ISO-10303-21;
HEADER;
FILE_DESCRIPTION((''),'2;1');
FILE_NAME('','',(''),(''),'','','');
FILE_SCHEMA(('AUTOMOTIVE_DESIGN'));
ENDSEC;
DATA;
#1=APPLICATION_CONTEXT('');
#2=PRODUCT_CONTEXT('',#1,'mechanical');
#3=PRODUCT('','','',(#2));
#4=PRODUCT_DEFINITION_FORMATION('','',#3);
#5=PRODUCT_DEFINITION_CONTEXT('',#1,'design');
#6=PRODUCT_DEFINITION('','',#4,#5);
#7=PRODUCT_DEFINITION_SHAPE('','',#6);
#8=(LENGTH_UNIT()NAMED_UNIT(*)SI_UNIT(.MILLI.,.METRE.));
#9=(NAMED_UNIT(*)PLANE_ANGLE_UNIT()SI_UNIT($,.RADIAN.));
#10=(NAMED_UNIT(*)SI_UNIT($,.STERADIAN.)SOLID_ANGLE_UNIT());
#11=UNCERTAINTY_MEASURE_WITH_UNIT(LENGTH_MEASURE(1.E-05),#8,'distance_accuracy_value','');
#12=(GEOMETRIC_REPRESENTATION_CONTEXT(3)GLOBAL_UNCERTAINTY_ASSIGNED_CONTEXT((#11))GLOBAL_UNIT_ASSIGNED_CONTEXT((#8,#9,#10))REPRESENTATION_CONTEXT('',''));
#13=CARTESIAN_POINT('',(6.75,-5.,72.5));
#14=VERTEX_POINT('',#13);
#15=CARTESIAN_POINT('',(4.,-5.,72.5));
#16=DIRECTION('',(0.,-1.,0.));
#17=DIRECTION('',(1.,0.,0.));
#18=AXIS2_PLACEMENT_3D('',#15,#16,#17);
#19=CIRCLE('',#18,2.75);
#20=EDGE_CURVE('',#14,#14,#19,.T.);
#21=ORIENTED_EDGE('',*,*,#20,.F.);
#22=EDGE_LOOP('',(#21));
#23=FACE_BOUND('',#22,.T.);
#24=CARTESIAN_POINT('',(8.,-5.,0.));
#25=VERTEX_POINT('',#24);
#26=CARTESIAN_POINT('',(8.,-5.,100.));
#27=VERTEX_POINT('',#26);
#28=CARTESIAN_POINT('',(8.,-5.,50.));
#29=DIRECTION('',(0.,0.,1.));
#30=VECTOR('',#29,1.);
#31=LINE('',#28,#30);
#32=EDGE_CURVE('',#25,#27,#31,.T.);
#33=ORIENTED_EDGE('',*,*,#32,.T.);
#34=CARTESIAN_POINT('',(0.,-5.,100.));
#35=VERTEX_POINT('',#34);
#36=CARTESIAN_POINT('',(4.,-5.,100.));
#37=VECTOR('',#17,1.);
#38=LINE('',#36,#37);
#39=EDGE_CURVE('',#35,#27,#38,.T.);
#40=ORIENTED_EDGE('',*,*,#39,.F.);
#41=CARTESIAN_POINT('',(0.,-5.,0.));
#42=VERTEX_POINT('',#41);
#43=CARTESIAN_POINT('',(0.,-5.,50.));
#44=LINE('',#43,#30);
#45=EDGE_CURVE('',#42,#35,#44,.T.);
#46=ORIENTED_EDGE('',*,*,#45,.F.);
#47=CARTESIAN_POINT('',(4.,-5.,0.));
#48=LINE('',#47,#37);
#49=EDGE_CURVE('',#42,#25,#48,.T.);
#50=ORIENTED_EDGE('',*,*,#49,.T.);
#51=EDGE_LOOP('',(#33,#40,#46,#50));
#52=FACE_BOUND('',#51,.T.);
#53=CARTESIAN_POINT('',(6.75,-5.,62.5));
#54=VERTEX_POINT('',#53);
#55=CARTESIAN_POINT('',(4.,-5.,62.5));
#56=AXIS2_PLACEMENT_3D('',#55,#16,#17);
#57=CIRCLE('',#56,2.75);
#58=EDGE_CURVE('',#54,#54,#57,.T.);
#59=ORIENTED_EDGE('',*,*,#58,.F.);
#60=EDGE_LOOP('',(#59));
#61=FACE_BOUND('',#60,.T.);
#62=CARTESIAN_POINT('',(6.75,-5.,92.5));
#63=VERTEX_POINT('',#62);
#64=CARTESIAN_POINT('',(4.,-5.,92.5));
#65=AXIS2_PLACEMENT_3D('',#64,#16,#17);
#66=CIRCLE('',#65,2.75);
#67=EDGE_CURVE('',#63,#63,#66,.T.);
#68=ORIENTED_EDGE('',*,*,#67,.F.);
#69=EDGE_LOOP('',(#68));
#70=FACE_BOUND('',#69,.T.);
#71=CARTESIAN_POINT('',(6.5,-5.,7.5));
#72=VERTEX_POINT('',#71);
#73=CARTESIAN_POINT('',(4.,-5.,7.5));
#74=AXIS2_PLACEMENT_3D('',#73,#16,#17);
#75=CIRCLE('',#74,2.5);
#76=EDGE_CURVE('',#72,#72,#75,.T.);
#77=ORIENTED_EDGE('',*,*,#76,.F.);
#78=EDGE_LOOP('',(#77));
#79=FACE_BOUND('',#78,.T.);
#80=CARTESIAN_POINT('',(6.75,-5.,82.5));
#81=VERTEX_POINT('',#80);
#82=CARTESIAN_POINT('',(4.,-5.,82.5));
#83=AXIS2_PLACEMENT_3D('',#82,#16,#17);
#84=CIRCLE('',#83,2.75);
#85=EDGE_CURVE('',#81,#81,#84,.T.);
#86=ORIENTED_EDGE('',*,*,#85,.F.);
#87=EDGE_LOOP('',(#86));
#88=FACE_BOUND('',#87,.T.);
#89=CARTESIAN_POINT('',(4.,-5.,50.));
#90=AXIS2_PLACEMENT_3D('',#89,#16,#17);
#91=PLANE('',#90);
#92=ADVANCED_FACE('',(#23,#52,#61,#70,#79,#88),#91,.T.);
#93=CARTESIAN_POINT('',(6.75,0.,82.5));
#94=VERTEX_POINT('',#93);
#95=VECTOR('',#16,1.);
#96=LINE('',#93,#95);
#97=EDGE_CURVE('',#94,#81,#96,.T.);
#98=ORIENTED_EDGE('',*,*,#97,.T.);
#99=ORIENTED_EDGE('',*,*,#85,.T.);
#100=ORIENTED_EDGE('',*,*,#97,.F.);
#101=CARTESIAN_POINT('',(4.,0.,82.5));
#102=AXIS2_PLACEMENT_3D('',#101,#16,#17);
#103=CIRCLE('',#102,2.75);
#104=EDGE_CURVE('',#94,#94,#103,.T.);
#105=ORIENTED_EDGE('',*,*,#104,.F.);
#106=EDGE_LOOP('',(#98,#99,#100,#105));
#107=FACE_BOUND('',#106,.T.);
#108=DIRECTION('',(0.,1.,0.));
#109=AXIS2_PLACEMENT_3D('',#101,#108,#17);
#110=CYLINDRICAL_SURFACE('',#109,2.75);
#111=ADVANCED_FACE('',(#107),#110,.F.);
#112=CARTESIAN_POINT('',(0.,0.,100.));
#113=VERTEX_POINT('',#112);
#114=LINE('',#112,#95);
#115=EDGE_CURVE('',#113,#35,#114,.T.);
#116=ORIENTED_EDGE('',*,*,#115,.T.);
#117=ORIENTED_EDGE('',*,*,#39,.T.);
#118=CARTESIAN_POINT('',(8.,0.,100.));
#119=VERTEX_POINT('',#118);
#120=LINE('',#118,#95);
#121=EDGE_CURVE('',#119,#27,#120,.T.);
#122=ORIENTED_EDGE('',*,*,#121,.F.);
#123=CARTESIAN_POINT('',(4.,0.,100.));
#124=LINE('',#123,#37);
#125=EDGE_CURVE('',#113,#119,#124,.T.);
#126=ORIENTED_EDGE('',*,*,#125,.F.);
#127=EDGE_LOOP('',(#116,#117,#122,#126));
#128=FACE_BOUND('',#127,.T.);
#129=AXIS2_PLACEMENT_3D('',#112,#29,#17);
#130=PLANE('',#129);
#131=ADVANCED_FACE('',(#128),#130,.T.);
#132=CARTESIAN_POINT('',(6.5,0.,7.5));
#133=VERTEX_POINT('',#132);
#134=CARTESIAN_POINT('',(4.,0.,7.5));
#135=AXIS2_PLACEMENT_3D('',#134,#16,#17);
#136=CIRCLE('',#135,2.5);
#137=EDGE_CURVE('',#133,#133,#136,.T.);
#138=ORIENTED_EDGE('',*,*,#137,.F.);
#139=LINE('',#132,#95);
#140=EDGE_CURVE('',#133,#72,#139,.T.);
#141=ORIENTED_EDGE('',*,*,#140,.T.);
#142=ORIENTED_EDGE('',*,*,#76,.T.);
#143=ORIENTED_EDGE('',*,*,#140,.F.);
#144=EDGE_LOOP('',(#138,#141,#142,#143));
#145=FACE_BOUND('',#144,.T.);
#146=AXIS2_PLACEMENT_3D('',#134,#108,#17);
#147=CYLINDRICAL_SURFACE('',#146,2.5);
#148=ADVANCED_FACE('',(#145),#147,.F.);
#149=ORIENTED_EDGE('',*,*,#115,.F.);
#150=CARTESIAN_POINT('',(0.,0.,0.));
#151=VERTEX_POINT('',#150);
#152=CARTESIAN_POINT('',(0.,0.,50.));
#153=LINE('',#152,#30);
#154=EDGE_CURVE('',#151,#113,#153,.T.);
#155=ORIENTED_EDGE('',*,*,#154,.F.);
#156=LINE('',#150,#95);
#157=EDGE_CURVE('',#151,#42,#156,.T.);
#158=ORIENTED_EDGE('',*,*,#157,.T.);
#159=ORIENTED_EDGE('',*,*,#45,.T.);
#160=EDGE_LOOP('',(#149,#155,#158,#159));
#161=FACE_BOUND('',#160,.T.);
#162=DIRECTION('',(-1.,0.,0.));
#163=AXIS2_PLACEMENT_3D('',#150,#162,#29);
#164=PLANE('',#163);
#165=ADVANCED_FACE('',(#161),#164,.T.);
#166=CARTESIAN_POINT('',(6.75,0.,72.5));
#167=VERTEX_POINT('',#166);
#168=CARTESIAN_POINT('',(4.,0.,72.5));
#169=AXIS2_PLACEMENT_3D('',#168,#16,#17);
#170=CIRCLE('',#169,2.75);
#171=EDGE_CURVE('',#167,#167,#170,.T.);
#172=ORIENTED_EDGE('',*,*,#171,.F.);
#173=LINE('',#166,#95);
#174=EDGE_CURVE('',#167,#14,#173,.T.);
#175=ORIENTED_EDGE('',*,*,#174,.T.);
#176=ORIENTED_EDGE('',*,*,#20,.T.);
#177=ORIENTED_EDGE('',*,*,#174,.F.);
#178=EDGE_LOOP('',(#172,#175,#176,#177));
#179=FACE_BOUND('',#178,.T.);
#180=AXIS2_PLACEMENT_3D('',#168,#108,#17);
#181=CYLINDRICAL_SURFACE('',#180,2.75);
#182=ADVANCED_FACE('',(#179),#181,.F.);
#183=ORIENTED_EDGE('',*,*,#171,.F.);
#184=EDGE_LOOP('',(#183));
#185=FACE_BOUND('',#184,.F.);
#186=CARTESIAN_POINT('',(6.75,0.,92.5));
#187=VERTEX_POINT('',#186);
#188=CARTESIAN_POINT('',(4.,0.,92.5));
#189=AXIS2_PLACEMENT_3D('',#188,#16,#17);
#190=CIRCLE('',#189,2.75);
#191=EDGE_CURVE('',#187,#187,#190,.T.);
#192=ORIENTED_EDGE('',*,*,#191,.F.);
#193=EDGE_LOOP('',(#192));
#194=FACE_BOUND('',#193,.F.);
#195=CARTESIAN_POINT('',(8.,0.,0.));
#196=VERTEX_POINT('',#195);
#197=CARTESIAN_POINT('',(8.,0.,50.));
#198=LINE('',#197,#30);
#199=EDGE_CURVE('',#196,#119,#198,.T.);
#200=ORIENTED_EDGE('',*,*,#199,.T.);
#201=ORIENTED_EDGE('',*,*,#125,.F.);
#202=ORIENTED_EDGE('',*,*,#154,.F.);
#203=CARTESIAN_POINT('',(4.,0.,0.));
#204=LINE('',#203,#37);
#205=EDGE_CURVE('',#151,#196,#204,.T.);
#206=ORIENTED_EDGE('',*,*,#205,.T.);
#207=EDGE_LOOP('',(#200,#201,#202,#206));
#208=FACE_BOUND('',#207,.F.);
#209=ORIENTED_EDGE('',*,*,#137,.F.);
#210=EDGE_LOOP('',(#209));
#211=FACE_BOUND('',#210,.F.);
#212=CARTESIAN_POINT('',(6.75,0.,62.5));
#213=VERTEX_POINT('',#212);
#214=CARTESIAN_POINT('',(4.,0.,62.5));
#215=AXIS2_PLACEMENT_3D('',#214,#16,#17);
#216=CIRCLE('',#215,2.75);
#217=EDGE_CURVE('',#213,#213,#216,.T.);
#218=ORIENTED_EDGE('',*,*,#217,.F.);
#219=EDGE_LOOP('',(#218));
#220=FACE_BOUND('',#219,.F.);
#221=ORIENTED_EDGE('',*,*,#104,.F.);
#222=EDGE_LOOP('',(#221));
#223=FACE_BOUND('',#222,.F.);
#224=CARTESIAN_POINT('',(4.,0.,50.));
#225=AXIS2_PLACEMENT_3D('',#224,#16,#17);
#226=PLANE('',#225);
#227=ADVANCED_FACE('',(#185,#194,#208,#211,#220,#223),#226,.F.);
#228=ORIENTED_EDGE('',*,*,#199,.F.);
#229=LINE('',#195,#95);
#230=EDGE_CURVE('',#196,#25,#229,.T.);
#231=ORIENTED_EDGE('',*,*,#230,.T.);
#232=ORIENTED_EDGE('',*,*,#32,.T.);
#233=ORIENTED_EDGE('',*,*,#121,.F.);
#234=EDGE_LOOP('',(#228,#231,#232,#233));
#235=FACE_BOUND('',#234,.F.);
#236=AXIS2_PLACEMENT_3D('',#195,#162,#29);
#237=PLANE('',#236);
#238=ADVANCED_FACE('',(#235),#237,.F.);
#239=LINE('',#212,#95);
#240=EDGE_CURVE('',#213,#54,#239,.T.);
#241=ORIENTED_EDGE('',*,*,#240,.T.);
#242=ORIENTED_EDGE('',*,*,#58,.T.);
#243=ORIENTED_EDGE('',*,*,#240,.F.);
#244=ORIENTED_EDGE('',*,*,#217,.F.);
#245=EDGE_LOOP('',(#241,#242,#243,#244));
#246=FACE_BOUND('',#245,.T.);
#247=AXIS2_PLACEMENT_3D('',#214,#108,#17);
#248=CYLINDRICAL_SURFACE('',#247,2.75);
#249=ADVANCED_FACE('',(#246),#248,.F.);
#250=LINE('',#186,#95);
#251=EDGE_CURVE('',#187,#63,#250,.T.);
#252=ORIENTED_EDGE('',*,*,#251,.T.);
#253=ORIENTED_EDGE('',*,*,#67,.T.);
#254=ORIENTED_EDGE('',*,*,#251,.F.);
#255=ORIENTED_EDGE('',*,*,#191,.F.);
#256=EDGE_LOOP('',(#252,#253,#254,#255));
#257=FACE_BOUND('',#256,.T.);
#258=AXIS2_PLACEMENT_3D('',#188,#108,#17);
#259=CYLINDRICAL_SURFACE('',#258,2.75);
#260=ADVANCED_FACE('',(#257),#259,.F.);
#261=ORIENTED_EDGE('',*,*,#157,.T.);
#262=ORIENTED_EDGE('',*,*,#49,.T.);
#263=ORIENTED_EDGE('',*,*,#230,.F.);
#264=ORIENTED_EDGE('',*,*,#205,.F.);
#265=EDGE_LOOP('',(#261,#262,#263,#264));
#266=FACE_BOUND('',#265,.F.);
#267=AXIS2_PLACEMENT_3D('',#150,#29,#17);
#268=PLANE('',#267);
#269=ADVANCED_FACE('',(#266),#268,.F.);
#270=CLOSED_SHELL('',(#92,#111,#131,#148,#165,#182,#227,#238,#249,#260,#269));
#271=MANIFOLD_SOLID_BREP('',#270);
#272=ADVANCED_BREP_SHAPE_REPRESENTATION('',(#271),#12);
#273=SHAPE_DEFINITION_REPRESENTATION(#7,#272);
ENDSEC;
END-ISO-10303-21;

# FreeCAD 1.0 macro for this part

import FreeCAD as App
import Part
import Sketcher
from FreeCAD import Vector

doc = App.newDocument("Part")
body = doc.addObject("PartDesign::Body", "Body")

# Sketch on XZ plane
sketch1 = doc.addObject("Sketcher::SketchObject", "Sketch")
body.addObject(sketch1)
sketch1.AttachmentSupport = (doc.XZ_Plane, [""])
sketch1.MapMode = "FlatFace"
sketch1.addGeometry(Part.LineSegment(Vector(0, 100, 0), Vector(0, 0, 0)), False)
sketch1.addGeometry(Part.LineSegment(Vector(0, 0, 0), Vector(8, 0, 0)), False)
sketch1.addGeometry(Part.LineSegment(Vector(8, 0, 0), Vector(8, 100, 0)), False)
sketch1.addGeometry(Part.LineSegment(Vector(8, 100, 0), Vector(0, 100, 0)), False)
sketch1.addGeometry(Part.Circle(Vector(4, 7.5, 0), Vector(0, 0, 1), 2.5), False)
sketch1.addGeometry(Part.Circle(Vector(4, 62.5, 0), Vector(0, 0, 1), 2.75), False)
sketch1.addGeometry(Part.Circle(Vector(4, 72.5, 0), Vector(0, 0, 1), 2.75), False)
sketch1.addGeometry(Part.Circle(Vector(4, 82.5, 0), Vector(0, 0, 1), 2.75), False)
sketch1.addGeometry(Part.Circle(Vector(4, 92.5, 0), Vector(0, 0, 1), 2.75), False)
sketch1.addConstraint(Sketcher.Constraint("Coincident", 0, 2, 1, 1))
sketch1.addConstraint(Sketcher.Constraint("Coincident", 1, 2, 2, 1))
sketch1.addConstraint(Sketcher.Constraint("Coincident", 2, 2, 3, 1))
sketch1.addConstraint(Sketcher.Constraint("Coincident", 3, 2, 0, 1))
sketch1.addConstraint(Sketcher.Constraint("Vertical", 0))
sketch1.addConstraint(Sketcher.Constraint("Horizontal", 1))
sketch1.addConstraint(Sketcher.Constraint("Vertical", 2))
sketch1.addConstraint(Sketcher.Constraint("Horizontal", 3))
sketch1.addConstraint(Sketcher.Constraint("Coincident", 0, 2, -1, 1))
sketch1.addConstraint(Sketcher.Constraint("Equal", 5, 6))
sketch1.addConstraint(Sketcher.Constraint("Equal", 6, 7))
sketch1.addConstraint(Sketcher.Constraint("Equal", 7, 8))
sketch1.addConstraint(Sketcher.Constraint("Vertical", 4, 3, 5, 3))
sketch1.addConstraint(Sketcher.Constraint("Vertical", 5, 3, 6, 3))
sketch1.addConstraint(Sketcher.Constraint("Vertical", 6, 3, 7, 3))
sketch1.addConstraint(Sketcher.Constraint("Vertical", 7, 3, 8, 3))
sketch1.addConstraint(Sketcher.Constraint("Diameter", 4, 5.0))
sketch1.addConstraint(Sketcher.Constraint("Diameter", 5, 5.5))
sketch1.addConstraint(Sketcher.Constraint("DistanceX", 1, 1, 1, 2, 8.0))
sketch1.addConstraint(Sketcher.Constraint("DistanceY", 0, 2, 0, 1, 100.0))
sketch1.addConstraint(Sketcher.Constraint("DistanceX", -1, 1, 4, 3, 4.0))
sketch1.addConstraint(Sketcher.Constraint("DistanceY", 4, 3, 5, 3, 55.0))
sketch1.addConstraint(Sketcher.Constraint("DistanceY", 5, 3, 6, 3, 10.0))
sketch1.addConstraint(Sketcher.Constraint("DistanceY", 6, 3, 7, 3, 10.0))
sketch1.addConstraint(Sketcher.Constraint("DistanceY", 7, 3, 8, 3, 10.0))
sketch1.addConstraint(Sketcher.Constraint("DistanceY", -1, 1, 4, 3, 7.5))
pad1 = doc.addObject("PartDesign::Pad", "Pad")
body.addObject(pad1)
pad1.Profile = sketch1
pad1.Length = 5

doc.recompute()
